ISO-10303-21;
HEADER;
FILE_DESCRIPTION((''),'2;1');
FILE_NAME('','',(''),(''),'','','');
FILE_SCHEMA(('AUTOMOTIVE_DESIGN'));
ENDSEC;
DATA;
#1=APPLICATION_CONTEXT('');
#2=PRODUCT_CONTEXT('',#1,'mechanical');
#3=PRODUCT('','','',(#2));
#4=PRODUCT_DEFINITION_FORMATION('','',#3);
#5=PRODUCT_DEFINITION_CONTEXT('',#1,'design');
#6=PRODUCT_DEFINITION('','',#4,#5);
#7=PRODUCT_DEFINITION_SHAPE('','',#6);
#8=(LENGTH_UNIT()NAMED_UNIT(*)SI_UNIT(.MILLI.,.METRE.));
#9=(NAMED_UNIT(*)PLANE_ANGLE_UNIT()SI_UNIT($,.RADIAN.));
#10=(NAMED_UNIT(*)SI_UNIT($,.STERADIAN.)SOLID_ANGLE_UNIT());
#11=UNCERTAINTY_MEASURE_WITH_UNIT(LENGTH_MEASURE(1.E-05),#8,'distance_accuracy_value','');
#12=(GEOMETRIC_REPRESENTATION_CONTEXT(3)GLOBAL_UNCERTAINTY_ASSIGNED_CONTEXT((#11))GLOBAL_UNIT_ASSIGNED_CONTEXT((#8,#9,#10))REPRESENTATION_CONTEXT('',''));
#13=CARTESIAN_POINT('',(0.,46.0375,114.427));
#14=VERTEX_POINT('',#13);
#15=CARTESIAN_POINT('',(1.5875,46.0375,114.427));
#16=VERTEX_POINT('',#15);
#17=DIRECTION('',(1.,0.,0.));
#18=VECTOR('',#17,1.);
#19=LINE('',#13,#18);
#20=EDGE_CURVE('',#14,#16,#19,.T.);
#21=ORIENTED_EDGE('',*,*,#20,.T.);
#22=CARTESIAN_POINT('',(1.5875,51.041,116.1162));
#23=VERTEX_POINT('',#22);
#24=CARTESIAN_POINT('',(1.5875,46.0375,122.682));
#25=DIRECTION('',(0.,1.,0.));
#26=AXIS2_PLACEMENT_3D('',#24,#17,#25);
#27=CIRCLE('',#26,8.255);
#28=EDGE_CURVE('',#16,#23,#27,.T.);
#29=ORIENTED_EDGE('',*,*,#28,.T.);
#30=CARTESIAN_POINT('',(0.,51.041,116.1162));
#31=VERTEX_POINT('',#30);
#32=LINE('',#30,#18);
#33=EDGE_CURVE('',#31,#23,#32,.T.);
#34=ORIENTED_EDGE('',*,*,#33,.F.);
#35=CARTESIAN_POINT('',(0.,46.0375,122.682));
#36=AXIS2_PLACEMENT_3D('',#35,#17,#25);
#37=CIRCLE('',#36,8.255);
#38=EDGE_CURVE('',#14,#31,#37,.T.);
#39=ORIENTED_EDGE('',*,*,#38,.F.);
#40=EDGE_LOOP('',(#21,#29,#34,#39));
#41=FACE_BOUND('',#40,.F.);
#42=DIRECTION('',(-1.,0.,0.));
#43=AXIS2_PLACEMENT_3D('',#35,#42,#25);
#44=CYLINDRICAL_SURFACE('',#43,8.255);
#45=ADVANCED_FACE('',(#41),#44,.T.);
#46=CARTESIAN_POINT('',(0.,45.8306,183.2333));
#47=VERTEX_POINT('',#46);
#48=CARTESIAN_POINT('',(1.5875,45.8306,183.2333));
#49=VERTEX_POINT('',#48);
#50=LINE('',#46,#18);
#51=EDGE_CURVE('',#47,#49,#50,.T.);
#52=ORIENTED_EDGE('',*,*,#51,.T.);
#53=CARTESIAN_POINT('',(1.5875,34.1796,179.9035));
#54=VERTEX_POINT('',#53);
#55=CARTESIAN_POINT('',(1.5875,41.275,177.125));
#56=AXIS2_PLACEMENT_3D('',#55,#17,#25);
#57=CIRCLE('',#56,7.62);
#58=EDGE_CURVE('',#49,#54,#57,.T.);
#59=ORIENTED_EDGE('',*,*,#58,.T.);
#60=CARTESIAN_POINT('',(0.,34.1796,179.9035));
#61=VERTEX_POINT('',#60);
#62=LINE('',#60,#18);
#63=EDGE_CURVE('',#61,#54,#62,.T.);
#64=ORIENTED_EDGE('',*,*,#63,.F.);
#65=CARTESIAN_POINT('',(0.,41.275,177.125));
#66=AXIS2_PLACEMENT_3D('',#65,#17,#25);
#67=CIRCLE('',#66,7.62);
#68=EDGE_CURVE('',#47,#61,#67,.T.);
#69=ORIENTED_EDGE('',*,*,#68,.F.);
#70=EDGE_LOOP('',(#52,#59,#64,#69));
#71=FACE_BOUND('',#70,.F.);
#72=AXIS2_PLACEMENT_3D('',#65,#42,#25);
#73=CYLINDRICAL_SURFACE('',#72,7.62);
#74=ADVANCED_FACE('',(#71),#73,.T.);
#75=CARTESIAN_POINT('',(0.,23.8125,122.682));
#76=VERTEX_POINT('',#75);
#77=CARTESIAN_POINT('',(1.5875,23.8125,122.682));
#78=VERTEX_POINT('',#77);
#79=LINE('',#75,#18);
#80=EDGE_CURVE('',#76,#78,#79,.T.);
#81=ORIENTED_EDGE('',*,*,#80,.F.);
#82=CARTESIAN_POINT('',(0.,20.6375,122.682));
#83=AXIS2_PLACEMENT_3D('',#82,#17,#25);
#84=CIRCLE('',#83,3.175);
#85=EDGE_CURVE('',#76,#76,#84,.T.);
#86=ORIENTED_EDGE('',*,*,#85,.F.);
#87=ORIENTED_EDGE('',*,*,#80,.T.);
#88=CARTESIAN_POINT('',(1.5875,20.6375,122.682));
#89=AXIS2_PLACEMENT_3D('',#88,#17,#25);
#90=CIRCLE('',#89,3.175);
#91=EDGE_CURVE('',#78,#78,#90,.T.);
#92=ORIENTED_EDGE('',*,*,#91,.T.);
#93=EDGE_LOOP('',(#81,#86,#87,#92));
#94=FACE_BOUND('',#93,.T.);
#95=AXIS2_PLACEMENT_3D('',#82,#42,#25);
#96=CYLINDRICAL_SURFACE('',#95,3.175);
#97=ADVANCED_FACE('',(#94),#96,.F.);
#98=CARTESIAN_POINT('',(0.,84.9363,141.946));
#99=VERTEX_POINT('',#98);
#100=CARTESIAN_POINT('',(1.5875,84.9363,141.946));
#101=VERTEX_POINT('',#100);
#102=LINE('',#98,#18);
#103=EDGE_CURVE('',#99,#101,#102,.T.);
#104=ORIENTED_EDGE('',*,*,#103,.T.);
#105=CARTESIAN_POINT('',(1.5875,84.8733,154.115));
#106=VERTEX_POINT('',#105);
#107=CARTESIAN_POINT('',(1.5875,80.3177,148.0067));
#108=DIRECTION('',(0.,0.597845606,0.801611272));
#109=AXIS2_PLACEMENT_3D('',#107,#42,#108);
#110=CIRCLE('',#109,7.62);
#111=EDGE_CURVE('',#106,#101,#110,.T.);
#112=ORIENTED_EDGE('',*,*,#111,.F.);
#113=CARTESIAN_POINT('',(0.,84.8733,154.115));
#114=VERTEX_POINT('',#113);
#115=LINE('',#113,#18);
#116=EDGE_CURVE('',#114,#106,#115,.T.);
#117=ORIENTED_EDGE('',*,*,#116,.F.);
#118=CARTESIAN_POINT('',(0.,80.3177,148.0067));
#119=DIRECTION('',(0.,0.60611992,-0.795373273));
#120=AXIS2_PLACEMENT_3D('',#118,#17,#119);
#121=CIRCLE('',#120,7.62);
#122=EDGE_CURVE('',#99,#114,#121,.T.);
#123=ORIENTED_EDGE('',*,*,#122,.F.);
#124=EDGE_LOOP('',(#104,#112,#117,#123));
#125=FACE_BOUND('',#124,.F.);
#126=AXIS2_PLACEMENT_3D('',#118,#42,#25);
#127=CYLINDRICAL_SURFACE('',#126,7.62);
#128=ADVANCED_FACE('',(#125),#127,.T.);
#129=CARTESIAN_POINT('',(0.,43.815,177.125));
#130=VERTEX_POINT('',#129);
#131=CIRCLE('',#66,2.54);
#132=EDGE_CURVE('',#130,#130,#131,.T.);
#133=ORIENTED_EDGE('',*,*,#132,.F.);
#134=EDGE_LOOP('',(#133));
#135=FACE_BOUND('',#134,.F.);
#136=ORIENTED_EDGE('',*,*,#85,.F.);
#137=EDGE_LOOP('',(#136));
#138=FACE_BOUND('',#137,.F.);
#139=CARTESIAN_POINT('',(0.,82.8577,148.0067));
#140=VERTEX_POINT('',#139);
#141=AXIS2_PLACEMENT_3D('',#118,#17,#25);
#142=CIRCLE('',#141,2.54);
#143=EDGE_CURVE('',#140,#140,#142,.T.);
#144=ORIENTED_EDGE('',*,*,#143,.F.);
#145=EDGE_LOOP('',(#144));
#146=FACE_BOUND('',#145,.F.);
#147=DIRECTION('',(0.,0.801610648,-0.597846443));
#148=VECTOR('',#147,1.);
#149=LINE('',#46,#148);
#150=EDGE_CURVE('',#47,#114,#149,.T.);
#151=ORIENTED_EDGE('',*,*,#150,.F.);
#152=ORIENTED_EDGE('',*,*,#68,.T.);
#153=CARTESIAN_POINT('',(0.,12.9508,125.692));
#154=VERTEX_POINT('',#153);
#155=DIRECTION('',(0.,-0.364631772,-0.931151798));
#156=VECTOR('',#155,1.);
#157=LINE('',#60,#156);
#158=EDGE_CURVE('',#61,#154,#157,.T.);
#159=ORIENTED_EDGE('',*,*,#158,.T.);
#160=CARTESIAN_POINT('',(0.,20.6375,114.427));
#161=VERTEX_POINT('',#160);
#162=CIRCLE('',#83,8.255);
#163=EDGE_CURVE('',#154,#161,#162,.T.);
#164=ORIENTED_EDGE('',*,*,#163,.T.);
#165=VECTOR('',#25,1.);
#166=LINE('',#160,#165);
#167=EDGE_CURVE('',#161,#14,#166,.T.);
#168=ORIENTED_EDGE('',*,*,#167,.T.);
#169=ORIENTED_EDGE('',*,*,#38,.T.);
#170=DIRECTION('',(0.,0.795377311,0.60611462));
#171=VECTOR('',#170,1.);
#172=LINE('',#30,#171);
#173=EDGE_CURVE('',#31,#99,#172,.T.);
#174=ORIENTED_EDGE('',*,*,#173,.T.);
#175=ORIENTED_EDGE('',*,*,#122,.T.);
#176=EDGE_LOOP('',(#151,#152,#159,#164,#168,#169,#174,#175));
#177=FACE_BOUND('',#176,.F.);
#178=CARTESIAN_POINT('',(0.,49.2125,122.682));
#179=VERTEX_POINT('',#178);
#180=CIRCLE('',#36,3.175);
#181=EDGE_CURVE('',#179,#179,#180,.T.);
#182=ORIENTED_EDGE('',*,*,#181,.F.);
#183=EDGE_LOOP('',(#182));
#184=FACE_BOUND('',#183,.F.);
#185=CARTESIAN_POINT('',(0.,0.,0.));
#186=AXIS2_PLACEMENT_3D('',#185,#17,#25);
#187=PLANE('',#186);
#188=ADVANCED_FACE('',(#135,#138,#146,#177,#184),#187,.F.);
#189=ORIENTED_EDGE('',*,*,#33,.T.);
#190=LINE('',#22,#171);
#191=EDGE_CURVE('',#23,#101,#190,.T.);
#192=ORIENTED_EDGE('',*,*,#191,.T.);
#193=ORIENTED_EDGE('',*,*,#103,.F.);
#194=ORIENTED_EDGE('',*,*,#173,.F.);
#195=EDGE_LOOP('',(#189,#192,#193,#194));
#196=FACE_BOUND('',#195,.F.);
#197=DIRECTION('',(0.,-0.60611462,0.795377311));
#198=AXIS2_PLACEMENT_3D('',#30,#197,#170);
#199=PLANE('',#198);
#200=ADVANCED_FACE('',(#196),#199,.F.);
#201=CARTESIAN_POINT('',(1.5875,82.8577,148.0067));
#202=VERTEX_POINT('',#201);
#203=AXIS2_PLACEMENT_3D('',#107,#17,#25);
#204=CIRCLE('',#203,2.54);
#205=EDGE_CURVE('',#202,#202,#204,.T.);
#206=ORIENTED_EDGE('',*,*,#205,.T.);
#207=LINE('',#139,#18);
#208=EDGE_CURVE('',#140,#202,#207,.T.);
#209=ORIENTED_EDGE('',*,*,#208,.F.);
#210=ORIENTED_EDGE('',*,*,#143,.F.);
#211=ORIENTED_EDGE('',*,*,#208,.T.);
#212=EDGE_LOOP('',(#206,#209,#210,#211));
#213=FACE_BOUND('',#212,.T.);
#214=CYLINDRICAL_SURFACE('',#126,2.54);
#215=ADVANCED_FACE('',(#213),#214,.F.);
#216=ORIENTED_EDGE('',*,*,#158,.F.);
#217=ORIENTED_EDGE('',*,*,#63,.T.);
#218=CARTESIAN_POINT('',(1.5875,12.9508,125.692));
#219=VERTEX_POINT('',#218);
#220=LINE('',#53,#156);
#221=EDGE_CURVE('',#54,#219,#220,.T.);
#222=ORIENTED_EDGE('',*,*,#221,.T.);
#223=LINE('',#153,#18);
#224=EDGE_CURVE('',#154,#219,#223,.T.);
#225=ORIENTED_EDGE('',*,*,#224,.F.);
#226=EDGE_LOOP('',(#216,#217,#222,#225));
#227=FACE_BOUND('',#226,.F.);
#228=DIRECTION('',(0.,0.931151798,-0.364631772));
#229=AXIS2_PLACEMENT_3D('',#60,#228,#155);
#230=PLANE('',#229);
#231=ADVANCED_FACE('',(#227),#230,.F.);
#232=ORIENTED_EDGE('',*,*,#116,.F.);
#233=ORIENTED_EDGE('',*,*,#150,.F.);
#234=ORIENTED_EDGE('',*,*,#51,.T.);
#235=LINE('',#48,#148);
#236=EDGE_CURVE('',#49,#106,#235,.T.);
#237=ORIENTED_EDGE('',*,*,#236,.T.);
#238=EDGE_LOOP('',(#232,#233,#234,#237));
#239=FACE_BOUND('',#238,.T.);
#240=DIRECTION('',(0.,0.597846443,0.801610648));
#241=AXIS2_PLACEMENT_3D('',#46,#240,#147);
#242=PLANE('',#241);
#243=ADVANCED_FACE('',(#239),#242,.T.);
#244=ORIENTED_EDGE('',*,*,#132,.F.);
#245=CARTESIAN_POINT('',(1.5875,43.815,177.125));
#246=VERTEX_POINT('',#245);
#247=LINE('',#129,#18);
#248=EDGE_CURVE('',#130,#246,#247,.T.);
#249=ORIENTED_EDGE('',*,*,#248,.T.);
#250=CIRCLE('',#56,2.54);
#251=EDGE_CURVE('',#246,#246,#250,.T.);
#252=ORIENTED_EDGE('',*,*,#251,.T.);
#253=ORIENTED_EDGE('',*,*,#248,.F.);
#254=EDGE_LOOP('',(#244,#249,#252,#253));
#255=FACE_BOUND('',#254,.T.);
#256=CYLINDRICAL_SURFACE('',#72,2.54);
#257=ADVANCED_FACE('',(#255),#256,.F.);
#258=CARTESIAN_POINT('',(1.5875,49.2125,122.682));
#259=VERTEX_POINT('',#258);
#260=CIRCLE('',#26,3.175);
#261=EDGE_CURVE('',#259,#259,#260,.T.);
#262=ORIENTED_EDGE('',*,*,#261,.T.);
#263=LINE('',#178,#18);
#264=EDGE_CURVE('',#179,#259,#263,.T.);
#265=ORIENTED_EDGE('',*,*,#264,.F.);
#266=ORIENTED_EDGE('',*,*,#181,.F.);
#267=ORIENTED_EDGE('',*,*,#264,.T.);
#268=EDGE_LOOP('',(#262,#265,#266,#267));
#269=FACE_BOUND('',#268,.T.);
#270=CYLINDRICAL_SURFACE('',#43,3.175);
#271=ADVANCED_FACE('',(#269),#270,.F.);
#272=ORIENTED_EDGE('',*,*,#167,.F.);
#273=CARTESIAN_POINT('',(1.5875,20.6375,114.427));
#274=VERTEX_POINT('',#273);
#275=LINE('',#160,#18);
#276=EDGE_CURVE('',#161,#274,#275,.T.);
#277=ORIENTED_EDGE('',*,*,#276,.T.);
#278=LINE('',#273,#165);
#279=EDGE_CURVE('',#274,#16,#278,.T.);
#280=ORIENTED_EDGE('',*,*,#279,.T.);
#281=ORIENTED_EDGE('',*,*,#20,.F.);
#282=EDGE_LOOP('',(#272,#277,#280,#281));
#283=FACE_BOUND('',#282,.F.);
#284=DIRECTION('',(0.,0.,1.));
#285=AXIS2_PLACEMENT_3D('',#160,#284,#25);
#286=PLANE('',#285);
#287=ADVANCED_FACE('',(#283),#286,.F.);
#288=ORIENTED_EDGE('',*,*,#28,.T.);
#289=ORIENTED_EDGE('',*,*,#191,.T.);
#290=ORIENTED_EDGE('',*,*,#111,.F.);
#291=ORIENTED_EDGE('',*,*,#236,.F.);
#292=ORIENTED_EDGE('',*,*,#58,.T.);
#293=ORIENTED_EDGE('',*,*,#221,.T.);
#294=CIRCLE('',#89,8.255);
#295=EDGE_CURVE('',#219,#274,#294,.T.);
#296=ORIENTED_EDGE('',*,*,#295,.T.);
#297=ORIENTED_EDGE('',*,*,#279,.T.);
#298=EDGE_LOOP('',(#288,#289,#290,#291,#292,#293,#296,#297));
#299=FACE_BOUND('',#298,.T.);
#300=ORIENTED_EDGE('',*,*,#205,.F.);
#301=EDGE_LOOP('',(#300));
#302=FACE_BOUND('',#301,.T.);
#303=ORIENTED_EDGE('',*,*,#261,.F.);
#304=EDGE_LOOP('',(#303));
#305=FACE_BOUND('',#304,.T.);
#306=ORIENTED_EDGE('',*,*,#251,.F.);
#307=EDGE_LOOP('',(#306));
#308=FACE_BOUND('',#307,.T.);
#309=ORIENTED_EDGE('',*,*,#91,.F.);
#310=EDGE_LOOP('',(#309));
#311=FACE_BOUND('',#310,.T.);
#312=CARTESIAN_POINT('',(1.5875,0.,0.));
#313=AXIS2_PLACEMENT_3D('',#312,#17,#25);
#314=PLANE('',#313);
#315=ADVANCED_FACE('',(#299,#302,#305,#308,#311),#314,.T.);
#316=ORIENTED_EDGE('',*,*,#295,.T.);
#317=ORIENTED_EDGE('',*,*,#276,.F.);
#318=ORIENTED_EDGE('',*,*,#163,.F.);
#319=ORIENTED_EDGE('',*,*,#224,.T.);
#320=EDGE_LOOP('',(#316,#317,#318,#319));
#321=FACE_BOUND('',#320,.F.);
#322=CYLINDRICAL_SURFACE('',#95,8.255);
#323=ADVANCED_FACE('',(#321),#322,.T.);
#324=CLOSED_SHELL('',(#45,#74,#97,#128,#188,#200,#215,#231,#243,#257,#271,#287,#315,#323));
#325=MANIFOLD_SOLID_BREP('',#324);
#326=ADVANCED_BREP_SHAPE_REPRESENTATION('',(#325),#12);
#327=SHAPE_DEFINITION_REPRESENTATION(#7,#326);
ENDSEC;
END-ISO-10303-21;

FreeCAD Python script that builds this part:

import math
import FreeCAD as App
import Part
import Sketcher

V = App.Vector
Q = App.Units.Quantity

doc = App.newDocument("Part")
body = doc.addObject("PartDesign::Body", "Body")

sketch1 = doc.addObject("Sketcher::SketchObject", "Sketch")
body.addObject(sketch1)
sketch1.AttachmentSupport = (doc.YZ_Plane, [""])
sketch1.MapMode = "FlatFace"
sketch1.addGeometry(Part.ArcOfCircle(Part.Circle(V(80.3177, 148.0067, 0), V(0, 0, 1), 7.62), math.radians(-52.690526), math.radians(53.284244)), False)
sketch1.addGeometry(Part.LineSegment(V(84.8733, 154.115, 0), V(45.8306, 183.2333, 0)), False)
sketch1.addGeometry(Part.ArcOfCircle(Part.Circle(V(41.275, 177.125, 0), V(0, 0, 1), 7.62), math.radians(53.284244), math.radians(158.6151)), False)
sketch1.addGeometry(Part.LineSegment(V(34.1796, 179.9035, 0), V(12.9508, 125.692, 0)), False)
sketch1.addGeometry(Part.ArcOfCircle(Part.Circle(V(20.6375, 122.682, 0), V(0, 0, 1), 8.255), math.radians(158.615411), math.radians(270)), False)
sketch1.addGeometry(Part.LineSegment(V(20.6375, 114.427, 0), V(46.0375, 114.427, 0)), False)
sketch1.addGeometry(Part.ArcOfCircle(Part.Circle(V(46.0375, 122.682, 0), V(0, 0, 1), 8.255), math.radians(-90), math.radians(-52.69061)), False)
sketch1.addGeometry(Part.LineSegment(V(51.041, 116.1162, 0), V(84.9363, 141.946, 0)), False)
sketch1.addGeometry(Part.Circle(V(80.3177, 148.0067, 0), V(0, 0, 1), 2.54), False)
sketch1.addGeometry(Part.Circle(V(46.0375, 122.682, 0), V(0, 0, 1), 3.175), False)
sketch1.addGeometry(Part.Circle(V(20.6375, 122.682, 0), V(0, 0, 1), 3.175), False)
sketch1.addGeometry(Part.Circle(V(41.275, 177.125, 0), V(0, 0, 1), 2.54), False)
sketch1.addConstraint(Sketcher.Constraint("Coincident", 0, 2, 1, 1))
sketch1.addConstraint(Sketcher.Constraint("Coincident", 1, 2, 2, 1))
sketch1.addConstraint(Sketcher.Constraint("Coincident", 2, 2, 3, 1))
sketch1.addConstraint(Sketcher.Constraint("Coincident", 3, 2, 4, 1))
sketch1.addConstraint(Sketcher.Constraint("Coincident", 4, 2, 5, 1))
sketch1.addConstraint(Sketcher.Constraint("Coincident", 5, 2, 6, 1))
sketch1.addConstraint(Sketcher.Constraint("Coincident", 6, 2, 7, 1))
sketch1.addConstraint(Sketcher.Constraint("Coincident", 7, 2, 0, 1))
sketch1.addConstraint(Sketcher.Constraint("Horizontal", 5))
sketch1.addConstraint(Sketcher.Constraint("Coincident", 8, 3, 0, 3))
sketch1.addConstraint(Sketcher.Constraint("Coincident", 9, 3, 6, 3))
sketch1.addConstraint(Sketcher.Constraint("Coincident", 10, 3, 4, 3))
sketch1.addConstraint(Sketcher.Constraint("Coincident", 11, 3, 2, 3))
sketch1.addConstraint(Sketcher.Constraint("Diameter", 8, Q("0.2 in")))
sketch1.addConstraint(Sketcher.Constraint("Diameter", 11, Q("0.2 in")))
sketch1.addConstraint(Sketcher.Constraint("Radius", 0, Q("0.3 in")))
sketch1.addConstraint(Sketcher.Constraint("Radius", 2, Q("0.3 in")))
sketch1.addConstraint(Sketcher.Constraint("Diameter", 9, Q("0.25 in")))
sketch1.addConstraint(Sketcher.Constraint("Diameter", 10, Q("0.25 in")))
sketch1.addConstraint(Sketcher.Constraint("DistanceX", 5, 1, 5, 2, Q("1 in")))
sketch1.addConstraint(Sketcher.Constraint("Radius", 4, Q("0.325 in")))
sketch1.addConstraint(Sketcher.Constraint("Radius", 6, Q("0.325 in")))
sketch1.addConstraint(Sketcher.Constraint("DistanceX", 4, 3, 6, 3, Q("1 in")))
sketch1.addConstraint(Sketcher.Constraint("DistanceX", 4, 2, 6, 3, Q("1 in")))
sketch1.addConstraint(Sketcher.Constraint("DistanceY", -1, 1, 4, 3, Q("4.83 in")))
sketch1.addConstraint(Sketcher.Constraint("DistanceX", -1, 1, 2, 3, Q("1.625 in")))
sketch1.addConstraint(Sketcher.Constraint("DistanceX", -1, 1, 4, 3, Q("0.8125 in")))
sketch1.addConstraint(Sketcher.Constraint("DistanceX", 5, 2, 6, 2, Q("0.197 in")))
sketch1.addConstraint(Sketcher.Constraint("DistanceY", -1, 1, 1, 2, Q("7.2139 in")))
sketch1.addConstraint(Sketcher.Constraint("DistanceY", -1, 1, 3, 2, Q("4.9485 in")))
sketch1.addConstraint(Sketcher.Constraint("DistanceY", 0, 3, 2, 3, Q("1.1464 in")))
sketch1.addConstraint(Sketcher.Constraint("DistanceY", 0, 2, 2, 3, Q("0.9059 in")))
sketch1.addConstraint(Sketcher.Constraint("DistanceY", 0, 2, 1, 2, Q("1.1464 in")))
sketch1.addConstraint(Sketcher.Constraint("DistanceY", 2, 3, 2, 2, Q("0.1094 in")))
sketch1.addConstraint(Sketcher.Constraint("DistanceY", 7, 2, 0, 3, Q("0.2386 in")))
sketch1.addConstraint(Sketcher.Constraint("Distance", 1, 48.7053))
pad1 = doc.addObject("PartDesign::Pad", "Pad")
body.addObject(pad1)
pad1.Profile = sketch1
pad1.Length = Q("0.0625 in")

doc.recompute()
